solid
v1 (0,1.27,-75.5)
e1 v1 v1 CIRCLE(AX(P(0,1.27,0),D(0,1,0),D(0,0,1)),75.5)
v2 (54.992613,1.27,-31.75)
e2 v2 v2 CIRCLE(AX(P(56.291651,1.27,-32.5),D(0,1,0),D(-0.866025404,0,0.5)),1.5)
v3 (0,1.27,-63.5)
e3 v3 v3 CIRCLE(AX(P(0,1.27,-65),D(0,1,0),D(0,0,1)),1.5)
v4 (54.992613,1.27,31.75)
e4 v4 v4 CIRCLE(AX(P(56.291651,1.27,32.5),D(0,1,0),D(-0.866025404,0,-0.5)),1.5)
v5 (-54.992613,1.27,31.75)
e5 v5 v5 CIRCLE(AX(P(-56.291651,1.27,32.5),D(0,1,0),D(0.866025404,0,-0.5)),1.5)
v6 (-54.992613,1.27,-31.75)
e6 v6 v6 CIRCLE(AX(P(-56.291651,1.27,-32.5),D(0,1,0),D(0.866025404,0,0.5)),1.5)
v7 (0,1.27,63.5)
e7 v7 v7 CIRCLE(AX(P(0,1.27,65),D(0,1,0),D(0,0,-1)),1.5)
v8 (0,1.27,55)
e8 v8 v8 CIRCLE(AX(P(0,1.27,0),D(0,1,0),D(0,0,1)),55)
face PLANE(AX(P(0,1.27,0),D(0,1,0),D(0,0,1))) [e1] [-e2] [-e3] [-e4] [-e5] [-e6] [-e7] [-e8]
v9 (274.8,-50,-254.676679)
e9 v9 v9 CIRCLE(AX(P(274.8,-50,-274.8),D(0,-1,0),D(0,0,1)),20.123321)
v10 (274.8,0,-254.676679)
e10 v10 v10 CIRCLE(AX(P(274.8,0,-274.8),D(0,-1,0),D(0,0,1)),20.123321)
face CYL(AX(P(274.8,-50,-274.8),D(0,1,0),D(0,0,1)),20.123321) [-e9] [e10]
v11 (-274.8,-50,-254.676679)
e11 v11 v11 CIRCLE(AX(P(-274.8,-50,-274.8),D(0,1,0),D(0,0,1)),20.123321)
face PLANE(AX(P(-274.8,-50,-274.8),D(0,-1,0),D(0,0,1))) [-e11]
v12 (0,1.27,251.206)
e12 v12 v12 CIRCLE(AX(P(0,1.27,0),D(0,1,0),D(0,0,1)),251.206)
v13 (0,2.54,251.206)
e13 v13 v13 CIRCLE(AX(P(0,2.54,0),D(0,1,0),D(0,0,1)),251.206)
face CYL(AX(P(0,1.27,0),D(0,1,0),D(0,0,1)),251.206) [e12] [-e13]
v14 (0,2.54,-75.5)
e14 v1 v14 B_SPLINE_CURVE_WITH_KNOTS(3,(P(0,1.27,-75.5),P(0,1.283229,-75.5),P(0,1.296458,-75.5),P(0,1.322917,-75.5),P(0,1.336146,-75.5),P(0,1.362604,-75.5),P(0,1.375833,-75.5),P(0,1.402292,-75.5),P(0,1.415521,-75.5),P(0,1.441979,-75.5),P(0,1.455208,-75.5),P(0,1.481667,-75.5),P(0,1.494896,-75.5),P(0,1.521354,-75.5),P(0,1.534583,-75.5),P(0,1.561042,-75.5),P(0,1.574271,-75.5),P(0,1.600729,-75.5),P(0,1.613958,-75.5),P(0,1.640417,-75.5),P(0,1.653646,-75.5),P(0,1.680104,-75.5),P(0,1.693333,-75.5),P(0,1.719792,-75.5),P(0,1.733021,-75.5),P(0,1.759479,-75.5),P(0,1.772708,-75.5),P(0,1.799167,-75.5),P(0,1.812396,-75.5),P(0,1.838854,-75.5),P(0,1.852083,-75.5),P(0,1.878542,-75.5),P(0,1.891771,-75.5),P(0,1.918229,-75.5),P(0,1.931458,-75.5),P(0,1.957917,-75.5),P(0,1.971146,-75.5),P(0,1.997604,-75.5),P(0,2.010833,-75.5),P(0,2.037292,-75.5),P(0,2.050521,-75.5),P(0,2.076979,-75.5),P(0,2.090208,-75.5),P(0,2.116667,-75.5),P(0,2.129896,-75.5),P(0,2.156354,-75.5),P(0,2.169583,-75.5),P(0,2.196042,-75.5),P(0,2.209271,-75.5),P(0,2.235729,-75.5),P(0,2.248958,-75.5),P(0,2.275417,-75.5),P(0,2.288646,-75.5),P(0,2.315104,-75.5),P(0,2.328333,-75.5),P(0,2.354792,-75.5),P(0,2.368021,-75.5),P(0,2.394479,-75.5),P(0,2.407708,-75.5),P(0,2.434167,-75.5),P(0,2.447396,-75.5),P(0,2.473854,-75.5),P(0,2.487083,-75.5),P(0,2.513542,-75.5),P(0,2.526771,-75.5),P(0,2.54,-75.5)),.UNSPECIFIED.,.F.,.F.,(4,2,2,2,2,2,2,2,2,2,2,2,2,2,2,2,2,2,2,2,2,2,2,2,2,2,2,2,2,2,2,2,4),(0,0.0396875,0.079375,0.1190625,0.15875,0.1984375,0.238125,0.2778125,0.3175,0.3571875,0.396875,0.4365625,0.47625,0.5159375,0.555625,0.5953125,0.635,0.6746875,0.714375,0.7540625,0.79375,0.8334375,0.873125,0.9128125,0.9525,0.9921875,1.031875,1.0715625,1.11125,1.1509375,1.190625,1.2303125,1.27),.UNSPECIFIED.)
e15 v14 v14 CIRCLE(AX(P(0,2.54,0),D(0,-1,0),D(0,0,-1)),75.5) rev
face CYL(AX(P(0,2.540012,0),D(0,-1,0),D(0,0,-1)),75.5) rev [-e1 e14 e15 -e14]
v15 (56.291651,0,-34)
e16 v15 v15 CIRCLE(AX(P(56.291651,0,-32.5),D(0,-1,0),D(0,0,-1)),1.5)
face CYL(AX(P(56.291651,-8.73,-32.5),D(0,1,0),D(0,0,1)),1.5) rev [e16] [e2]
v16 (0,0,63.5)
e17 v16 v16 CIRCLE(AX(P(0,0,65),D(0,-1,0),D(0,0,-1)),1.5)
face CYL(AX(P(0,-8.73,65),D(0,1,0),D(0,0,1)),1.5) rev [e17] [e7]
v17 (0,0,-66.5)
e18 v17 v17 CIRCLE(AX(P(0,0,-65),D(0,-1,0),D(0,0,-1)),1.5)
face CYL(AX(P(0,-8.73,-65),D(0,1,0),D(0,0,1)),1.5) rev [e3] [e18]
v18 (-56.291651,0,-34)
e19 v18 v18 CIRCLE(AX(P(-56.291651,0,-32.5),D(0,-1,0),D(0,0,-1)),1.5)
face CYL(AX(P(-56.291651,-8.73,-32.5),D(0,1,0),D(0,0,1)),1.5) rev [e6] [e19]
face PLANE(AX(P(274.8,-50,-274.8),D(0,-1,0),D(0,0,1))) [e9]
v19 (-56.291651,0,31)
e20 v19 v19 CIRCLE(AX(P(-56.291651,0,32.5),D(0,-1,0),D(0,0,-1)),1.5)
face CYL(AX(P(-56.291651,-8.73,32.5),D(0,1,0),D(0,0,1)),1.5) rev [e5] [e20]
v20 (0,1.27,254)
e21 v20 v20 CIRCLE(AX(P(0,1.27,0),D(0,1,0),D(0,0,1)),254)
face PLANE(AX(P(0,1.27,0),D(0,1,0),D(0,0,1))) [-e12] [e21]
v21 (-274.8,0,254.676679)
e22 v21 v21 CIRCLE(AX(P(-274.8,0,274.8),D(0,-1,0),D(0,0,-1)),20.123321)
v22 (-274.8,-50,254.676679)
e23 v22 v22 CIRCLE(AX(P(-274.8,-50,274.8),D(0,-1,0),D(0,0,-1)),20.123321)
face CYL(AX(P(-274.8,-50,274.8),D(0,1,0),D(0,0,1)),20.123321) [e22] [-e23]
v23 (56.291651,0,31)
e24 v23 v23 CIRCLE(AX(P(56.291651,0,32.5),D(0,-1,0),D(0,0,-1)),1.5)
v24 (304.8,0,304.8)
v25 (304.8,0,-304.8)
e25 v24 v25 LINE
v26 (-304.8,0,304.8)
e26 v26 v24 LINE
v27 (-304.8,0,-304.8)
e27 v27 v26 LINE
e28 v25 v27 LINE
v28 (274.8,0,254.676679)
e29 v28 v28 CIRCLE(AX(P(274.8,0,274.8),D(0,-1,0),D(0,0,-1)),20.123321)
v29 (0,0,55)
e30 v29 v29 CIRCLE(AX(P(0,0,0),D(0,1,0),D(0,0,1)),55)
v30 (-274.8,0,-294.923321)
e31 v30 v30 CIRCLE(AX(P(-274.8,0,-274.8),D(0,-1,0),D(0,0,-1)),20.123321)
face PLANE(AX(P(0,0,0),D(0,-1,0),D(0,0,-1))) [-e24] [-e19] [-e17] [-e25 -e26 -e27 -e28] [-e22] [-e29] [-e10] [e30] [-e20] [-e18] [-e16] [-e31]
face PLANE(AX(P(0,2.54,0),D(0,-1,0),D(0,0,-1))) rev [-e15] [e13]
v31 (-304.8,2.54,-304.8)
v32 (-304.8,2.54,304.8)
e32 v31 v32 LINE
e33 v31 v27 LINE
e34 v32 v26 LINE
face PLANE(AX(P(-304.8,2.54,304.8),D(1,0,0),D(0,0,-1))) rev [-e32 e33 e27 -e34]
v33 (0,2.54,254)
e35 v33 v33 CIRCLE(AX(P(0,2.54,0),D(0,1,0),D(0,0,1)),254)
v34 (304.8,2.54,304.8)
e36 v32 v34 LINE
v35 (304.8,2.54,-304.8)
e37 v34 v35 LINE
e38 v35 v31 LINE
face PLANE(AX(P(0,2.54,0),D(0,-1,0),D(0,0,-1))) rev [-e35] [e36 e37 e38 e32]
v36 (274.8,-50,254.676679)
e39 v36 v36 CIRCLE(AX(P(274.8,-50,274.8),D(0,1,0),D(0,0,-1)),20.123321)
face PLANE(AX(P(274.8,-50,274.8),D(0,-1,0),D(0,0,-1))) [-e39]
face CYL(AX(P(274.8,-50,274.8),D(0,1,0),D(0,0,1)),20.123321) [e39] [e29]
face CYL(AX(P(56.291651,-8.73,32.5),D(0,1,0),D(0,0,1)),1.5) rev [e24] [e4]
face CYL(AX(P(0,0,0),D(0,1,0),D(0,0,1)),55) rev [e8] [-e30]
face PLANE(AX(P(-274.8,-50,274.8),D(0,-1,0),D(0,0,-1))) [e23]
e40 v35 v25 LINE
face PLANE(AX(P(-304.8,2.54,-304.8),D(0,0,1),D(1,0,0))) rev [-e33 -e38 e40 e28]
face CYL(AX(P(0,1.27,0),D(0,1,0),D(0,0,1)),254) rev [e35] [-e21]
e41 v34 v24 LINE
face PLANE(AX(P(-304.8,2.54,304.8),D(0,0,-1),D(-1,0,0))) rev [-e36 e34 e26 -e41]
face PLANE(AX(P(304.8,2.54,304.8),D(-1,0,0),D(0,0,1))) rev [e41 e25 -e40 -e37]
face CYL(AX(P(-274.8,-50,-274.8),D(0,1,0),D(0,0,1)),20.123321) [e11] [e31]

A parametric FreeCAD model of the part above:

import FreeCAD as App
import Part
import Sketcher
Q = App.Units.Quantity

doc = App.newDocument("Part")
body = doc.addObject("PartDesign::Body", "Body")

sketch1 = body.newObject("Sketcher::SketchObject", "Sketch")
sketch1.AttachmentSupport = (doc.getObject("XZ_Plane"), [""])
sketch1.MapMode = "FlatFace"
sketch1.addGeometry(Part.LineSegment(App.Vector(-305, -305, 0), App.Vector(-305, 305, 0)), False)
sketch1.addGeometry(Part.LineSegment(App.Vector(-305, 305, 0), App.Vector(305, 305, 0)), False)
sketch1.addGeometry(Part.LineSegment(App.Vector(305, 305, 0), App.Vector(305, -305, 0)), False)
sketch1.addGeometry(Part.LineSegment(App.Vector(305, -305, 0), App.Vector(-305, -305, 0)), False)
sketch1.addConstraint(Sketcher.Constraint("Coincident", 0, 2, 1, 1))
sketch1.addConstraint(Sketcher.Constraint("Coincident", 1, 2, 2, 1))
sketch1.addConstraint(Sketcher.Constraint("Coincident", 2, 2, 3, 1))
sketch1.addConstraint(Sketcher.Constraint("Coincident", 3, 2, 0, 1))
sketch1.addConstraint(Sketcher.Constraint("Vertical", 0))
sketch1.addConstraint(Sketcher.Constraint("Horizontal", 1))
sketch1.addConstraint(Sketcher.Constraint("Vertical", 2))
sketch1.addConstraint(Sketcher.Constraint("Horizontal", 3))
sketch1.addConstraint(Sketcher.Constraint("Symmetric", 0, 2, 2, 2, -1, 1))
sketch1.addConstraint(Sketcher.Constraint("Equal", 3, 0))
sketch1.addConstraint(Sketcher.Constraint("DistanceX", 1, 1, 1, 2, Q("609.6 mm")))
pad1 = body.newObject("PartDesign::Pad", "Pad")
pad1.Profile = sketch1
pad1.Length = 2.54
pad1.Reversed = True

sketch2 = body.newObject("Sketcher::SketchObject", "Sketch001")
sketch2.AttachmentSupport = (doc.getObject("XZ_Plane"), [""])
sketch2.MapMode = "FlatFace"
sketch2.AttachmentOffset = App.Placement(App.Vector(0, 0, -2.54), App.Rotation())
sketch2.addGeometry(Part.Circle(App.Vector(0, 0, 0), App.Vector(0, 0, 1), 76), False)
sketch2.addConstraint(Sketcher.Constraint("Coincident", 0, 3, -1, 1))
sketch2.addConstraint(Sketcher.Constraint("Diameter", 0, Q("151 mm")))
pocket1 = body.newObject("PartDesign::Pocket", "Pocket")
pocket1.Profile = sketch2
pocket1.Type = "TwoLengths"
pocket1.Length = 432.059777
pocket1.Length2 = 1.27

sketch3 = body.newObject("Sketcher::SketchObject", "Sketch002")
sketch3.AttachmentSupport = (doc.getObject("XZ_Plane"), [""])
sketch3.MapMode = "FlatFace"
sketch3.AttachmentOffset = App.Placement(App.Vector(0, 0, -1.27), App.Rotation())
sketch3.addGeometry(Part.Circle(App.Vector(0, 0, 0), App.Vector(0, 0, 1), 55), False)
sketch3.addConstraint(Sketcher.Constraint("Coincident", 0, 3, -1, 1))
sketch3.addConstraint(Sketcher.Constraint("Diameter", 0, Q("110 mm")))
pocket2 = body.newObject("PartDesign::Pocket", "Pocket001")
pocket2.Profile = sketch3
pocket2.Type = "ThroughAll"
pocket2.Midplane = True

sketch4 = body.newObject("Sketcher::SketchObject", "Sketch003")
sketch4.AttachmentSupport = (doc.getObject("XZ_Plane"), [""])
sketch4.MapMode = "FlatFace"
sketch4.addGeometry(Part.Circle(App.Vector(-275, 275, 0), App.Vector(0, 0, 1), 20), False)
sketch4.addConstraint(Sketcher.Constraint("DistanceX", 0, 3, -1, 1, Q("274.8 mm")))
sketch4.addConstraint(Sketcher.Constraint("DistanceY", -1, 1, 0, 3, Q("274.8 mm")))
sketch4.addConstraint(Sketcher.Constraint("Diameter", 0, Q("40.246641 mm")))
pad2 = body.newObject("PartDesign::Pad", "Pad001")
pad2.Profile = sketch4
pad2.Length = 50

sketch5 = body.newObject("Sketcher::SketchObject", "Sketch004")
sketch5.AttachmentSupport = (doc.getObject("XZ_Plane"), [""])
sketch5.MapMode = "FlatFace"
sketch5.AttachmentOffset = App.Placement(App.Vector(0, 0, -1.27), App.Rotation())
sketch5.addGeometry(Part.Circle(App.Vector(0, -65, 0), App.Vector(0, 0, 1), 1.5), False)
sketch5.addConstraint(Sketcher.Constraint("PointOnObject", 0, 3, -2))
sketch5.addConstraint(Sketcher.Constraint("Diameter", 0, Q("3 mm")))
sketch5.addConstraint(Sketcher.Constraint("DistanceY", 0, 3, -1, 1, Q("65 mm")))
pocket3 = body.newObject("PartDesign::Pocket", "Pocket002")
pocket3.Profile = sketch5
pocket3.Length = 10
pocket3.Reversed = True
doc.recompute()

polarpattern = body.newObject("PartDesign::PolarPattern", "PolarPattern")
polarpattern.Originals = [pocket3]
polarpattern.Axis = (doc.getObject("Y_Axis"), [""])
polarpattern.Angle = 360
polarpattern.Occurrences = 6
body.Tip = polarpattern
doc.recompute()

mirrored = body.newObject("PartDesign::Mirrored", "Mirrored")
mirrored.Originals = [pad2]
mirrored.MirrorPlane = (doc.getObject("XY_Plane"), [""])
body.Tip = mirrored
doc.recompute()

mirrored2 = body.newObject("PartDesign::Mirrored", "Mirrored001")
mirrored2.Originals = [pad2]
mirrored2.MirrorPlane = (doc.getObject("YZ_Plane"), [""])
body.Tip = mirrored2

sketch6 = body.newObject("Sketcher::SketchObject", "Sketch005")
sketch6.AttachmentSupport = (doc.getObject("XZ_Plane"), [""])
sketch6.MapMode = "FlatFace"
sketch6.addGeometry(Part.Circle(App.Vector(275, -275, 0), App.Vector(0, 0, 1), 20), False)
sketch6.addConstraint(Sketcher.Constraint("DistanceX", -1, 1, 0, 3, Q("274.8 mm")))
sketch6.addConstraint(Sketcher.Constraint("DistanceY", 0, 3, -1, 1, Q("274.8 mm")))
sketch6.addConstraint(Sketcher.Constraint("Diameter", 0, Q("40.246641 mm")))
pad3 = body.newObject("PartDesign::Pad", "Pad002")
pad3.Profile = sketch6
pad3.Length = 50

sketch7 = body.newObject("Sketcher::SketchObject", "Sketch006")
sketch7.AttachmentSupport = (doc.getObject("XZ_Plane"), [""])
sketch7.MapMode = "FlatFace"
sketch7.AttachmentOffset = App.Placement(App.Vector(0, 0, -2.54), App.Rotation())
sketch7.addGeometry(Part.Circle(App.Vector(0, 0, 0), App.Vector(0, 0, 1), 254), False)
sketch7.addGeometry(Part.Circle(App.Vector(0, 0, 0), App.Vector(0, 0, 1), 251), False)
sketch7.addConstraint(Sketcher.Constraint("Coincident", 0, 3, -1, 1))
sketch7.addConstraint(Sketcher.Constraint("Coincident", 1, 3, -1, 1))
sketch7.addConstraint(Sketcher.Constraint("Diameter", 0, Q("508 mm")))
sketch7.addConstraint(Sketcher.Constraint("Diameter", 1, Q("502.412 mm")))
pocket4 = body.newObject("PartDesign::Pocket", "Pocket003")
pocket4.Profile = sketch7
pocket4.Length = 1.27
pocket4.Reversed = True

doc.recompute()
